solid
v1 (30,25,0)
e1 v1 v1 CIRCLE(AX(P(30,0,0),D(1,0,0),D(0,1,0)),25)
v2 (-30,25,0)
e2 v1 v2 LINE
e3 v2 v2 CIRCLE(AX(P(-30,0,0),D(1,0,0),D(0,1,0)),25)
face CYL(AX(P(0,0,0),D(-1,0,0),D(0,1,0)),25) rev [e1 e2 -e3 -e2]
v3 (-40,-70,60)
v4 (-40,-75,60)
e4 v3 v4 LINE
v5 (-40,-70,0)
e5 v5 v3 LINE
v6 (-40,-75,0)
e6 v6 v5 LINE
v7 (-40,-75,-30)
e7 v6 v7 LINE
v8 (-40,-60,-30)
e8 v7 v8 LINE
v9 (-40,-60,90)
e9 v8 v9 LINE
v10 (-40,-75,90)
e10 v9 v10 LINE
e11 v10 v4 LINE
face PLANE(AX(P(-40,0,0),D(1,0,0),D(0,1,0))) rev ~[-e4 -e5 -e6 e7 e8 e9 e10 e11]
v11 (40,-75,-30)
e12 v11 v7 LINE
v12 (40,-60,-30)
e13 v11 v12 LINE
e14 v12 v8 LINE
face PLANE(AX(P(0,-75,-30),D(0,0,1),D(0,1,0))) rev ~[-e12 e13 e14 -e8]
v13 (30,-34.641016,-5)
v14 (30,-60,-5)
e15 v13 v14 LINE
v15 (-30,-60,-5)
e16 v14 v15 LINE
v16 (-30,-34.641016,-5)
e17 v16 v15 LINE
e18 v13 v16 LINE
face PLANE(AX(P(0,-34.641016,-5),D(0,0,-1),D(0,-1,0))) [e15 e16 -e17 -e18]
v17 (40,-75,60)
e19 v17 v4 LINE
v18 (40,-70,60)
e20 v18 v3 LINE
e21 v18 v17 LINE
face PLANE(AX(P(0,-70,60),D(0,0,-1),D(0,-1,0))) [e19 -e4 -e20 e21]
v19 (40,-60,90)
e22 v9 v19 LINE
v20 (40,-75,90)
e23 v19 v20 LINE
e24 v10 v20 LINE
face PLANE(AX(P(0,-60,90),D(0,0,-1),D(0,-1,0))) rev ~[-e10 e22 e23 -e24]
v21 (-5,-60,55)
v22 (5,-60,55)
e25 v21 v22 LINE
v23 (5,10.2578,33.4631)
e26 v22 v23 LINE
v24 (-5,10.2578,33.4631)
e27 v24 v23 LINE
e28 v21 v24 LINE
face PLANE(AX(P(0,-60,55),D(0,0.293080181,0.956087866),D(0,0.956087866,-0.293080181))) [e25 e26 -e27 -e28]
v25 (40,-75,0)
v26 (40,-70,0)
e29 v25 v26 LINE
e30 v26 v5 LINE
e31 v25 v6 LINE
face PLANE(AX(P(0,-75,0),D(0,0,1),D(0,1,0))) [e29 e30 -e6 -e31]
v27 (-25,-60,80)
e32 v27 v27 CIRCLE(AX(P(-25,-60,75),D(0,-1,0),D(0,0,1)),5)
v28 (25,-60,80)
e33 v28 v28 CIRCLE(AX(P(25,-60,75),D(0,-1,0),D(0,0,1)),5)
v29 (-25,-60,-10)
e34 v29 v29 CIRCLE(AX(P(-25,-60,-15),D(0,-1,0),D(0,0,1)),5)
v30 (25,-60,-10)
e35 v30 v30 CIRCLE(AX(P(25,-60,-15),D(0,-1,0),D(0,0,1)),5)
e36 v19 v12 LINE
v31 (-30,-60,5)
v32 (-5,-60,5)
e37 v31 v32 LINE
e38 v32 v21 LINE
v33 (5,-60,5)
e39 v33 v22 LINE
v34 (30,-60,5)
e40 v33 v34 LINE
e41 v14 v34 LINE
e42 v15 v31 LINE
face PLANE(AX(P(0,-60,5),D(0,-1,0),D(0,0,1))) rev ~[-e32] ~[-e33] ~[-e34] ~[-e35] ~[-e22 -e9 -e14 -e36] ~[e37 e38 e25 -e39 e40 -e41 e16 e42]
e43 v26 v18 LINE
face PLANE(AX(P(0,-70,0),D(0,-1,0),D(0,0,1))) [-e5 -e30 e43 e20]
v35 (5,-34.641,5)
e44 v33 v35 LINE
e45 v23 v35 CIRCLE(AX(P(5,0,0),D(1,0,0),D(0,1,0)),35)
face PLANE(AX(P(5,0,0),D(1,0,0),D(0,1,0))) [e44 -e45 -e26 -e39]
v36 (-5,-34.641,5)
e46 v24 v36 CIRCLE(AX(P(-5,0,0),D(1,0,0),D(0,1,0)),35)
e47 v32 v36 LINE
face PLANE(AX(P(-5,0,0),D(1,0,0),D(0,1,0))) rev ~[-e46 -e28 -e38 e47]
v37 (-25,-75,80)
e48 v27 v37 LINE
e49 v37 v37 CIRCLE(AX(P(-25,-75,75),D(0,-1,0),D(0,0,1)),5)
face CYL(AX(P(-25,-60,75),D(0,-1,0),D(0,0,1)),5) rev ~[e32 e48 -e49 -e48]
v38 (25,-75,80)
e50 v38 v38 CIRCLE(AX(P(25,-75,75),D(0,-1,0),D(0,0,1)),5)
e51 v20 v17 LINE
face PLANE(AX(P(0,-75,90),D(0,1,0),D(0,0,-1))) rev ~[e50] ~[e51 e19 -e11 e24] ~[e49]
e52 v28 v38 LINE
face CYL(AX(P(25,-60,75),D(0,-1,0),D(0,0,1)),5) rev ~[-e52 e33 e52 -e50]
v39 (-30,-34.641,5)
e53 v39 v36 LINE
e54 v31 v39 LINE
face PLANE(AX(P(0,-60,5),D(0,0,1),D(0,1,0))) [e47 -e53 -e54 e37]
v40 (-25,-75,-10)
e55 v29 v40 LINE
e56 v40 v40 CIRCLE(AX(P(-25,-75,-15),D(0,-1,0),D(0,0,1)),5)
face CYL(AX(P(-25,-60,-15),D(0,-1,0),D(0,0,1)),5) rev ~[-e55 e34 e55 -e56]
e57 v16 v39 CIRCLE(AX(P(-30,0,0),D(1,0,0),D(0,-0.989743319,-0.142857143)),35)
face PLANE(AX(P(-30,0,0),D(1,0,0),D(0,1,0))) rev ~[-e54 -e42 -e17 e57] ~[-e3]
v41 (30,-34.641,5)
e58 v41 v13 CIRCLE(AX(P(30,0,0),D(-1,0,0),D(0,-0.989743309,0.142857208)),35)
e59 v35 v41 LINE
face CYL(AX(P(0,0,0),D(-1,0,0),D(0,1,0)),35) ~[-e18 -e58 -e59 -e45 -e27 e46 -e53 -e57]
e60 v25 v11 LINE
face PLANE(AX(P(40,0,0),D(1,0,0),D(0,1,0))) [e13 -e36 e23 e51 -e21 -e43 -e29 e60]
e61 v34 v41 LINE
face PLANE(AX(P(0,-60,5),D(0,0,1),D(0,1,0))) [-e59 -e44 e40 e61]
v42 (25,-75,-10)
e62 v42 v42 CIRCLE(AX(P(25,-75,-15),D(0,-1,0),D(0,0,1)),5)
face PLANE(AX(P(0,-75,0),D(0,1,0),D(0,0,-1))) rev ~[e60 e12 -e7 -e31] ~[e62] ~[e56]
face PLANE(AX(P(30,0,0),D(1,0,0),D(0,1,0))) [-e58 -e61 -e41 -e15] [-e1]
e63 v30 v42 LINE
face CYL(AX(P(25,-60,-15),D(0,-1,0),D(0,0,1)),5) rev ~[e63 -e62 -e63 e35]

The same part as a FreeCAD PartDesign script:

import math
import FreeCAD as App
import Part
import Sketcher
from FreeCAD import Vector


def add_polygon(sketch, points):
    """Adds a closed chain of lines whose ends are joined by coincident constraints."""
    first, n = sketch.GeometryCount, len(points)
    for a, b in zip(points, points[1:] + points[:1]):
        sketch.addGeometry(Part.LineSegment(App.Vector(*a, 0), App.Vector(*b, 0)), False)
    for i in range(n):
        sketch.addConstraint(Sketcher.Constraint("Coincident", first + i, 2, first + (i + 1) % n, 1))

doc = App.newDocument("Part")
body = doc.addObject("PartDesign::Body", "Body")

# Sketch on YZ plane
sketch1 = body.newObject("Sketcher::SketchObject", "Sketch")
sketch1.AttachmentSupport = (doc.getObject("YZ_Plane"), [""])
sketch1.MapMode = "FlatFace"
sketch1.addGeometry([
    Part.ArcOfCircle(Part.Circle(Vector(0, 0, 0), Vector(0, 0, 1), 35), math.radians(-172), math.radians(172)),  # 0
    Part.LineSegment(Vector(-35, 5, 0), Vector(-60, 5, 0)),  # 1
    Part.LineSegment(Vector(-60, 5, 0), Vector(-60, -5, 0)),  # 2
    Part.LineSegment(Vector(-60, -5, 0), Vector(-35, -5, 0)),  # 3
    Part.Circle(Vector(0, 0, 0), Vector(0, 0, 1), 25),  # 4
], False)
sketch1.addConstraint([
    Sketcher.Constraint("Coincident", 0, 2, 1, 1),
    Sketcher.Constraint("Coincident", 1, 2, 2, 1),
    Sketcher.Constraint("Coincident", 2, 2, 3, 1),
    Sketcher.Constraint("Coincident", 3, 2, 0, 1),
    Sketcher.Constraint("Horizontal", 1),
    Sketcher.Constraint("Vertical", 2),
    Sketcher.Constraint("Horizontal", 3),
    Sketcher.Constraint("Coincident", 0, 3, -1, 1),
    Sketcher.Constraint("Coincident", 4, 3, -1, 1),
    Sketcher.Constraint("Vertical", 0, 2, 3, 2),
    Sketcher.Constraint("Diameter", 4, 50.0),
    Sketcher.Constraint("Radius", 0, 35.0),
    Sketcher.Constraint("DistanceY", 2, 2, 2, 1, 10.0),
    Sketcher.Constraint("DistanceX", 1, 2, -1, 1, 60.0),
])
pad1 = body.newObject("PartDesign::Pad", "Pad")
pad1.Profile = sketch1
pad1.Length = 60
pad1.Midplane = True

# Sketch on YZ plane
sketch2 = body.newObject("Sketcher::SketchObject", "Sketch001")
sketch2.AttachmentSupport = (doc.getObject("YZ_Plane"), [""])
sketch2.MapMode = "FlatFace"
sketch2.addGeometry([
    Part.ArcOfCircle(Part.Circle(Vector(0, 0, 0), Vector(0, 0, 1), 35), math.radians(73), math.radians(172)),
    Part.LineSegment(Vector(10, 33, 0), Vector(-60, 55, 0)),
    Part.LineSegment(Vector(-60, 55, 0), Vector(-60, 5, 0)),
    Part.LineSegment(Vector(-60, 5, 0), Vector(-35, 5, 0)),
], False)
sketch2.addConstraint([
    Sketcher.Constraint("Tangent", 0, 1, 1, 1),
    Sketcher.Constraint("Coincident", 1, 2, 2, 1),
    Sketcher.Constraint("Coincident", 2, 2, 3, 1),
    Sketcher.Constraint("Coincident", 3, 2, 0, 2),
    Sketcher.Constraint("Vertical", 2),
    Sketcher.Constraint("Horizontal", 3),
    Sketcher.Constraint("Coincident", 0, 3, -1, 1),
    Sketcher.Constraint("Radius", 0, 35.0),
    Sketcher.Constraint("DistanceY", 2, 2, 2, 1, 50.0),
    Sketcher.Constraint("DistanceX", 1, 2, -1, 1, 60.0),
    Sketcher.Constraint("DistanceY", -1, 1, 2, 2, 5.0),
])
pad2 = body.newObject("PartDesign::Pad", "Pad001")
pad2.Profile = sketch2
pad2.Length = 10
pad2.Midplane = True

# Sketch on YZ plane
sketch3 = body.newObject("Sketcher::SketchObject", "Sketch002")
sketch3.AttachmentSupport = (doc.getObject("YZ_Plane"), [""])
sketch3.MapMode = "FlatFace"
add_polygon(sketch3, [(-60, -30), (-60, 90), (-75, 90), (-75, 60), (-70, 60), (-70, 0), (-75, 0), (-75, -30)])  # lines 0-7
sketch3.addConstraint([
    Sketcher.Constraint("Vertical", 0),
    Sketcher.Constraint("Horizontal", 1),
    Sketcher.Constraint("Vertical", 2),
    Sketcher.Constraint("Horizontal", 3),
    Sketcher.Constraint("Vertical", 4),
    Sketcher.Constraint("Horizontal", 5),
    Sketcher.Constraint("Vertical", 6),
    Sketcher.Constraint("Horizontal", 7),
    Sketcher.Constraint("PointOnObject", 4, 2, -1),
    Sketcher.Constraint("Vertical", 2, 2, 5, 2),
    Sketcher.Constraint("Equal", 2, 6),
    Sketcher.Constraint("DistanceX", 1, 2, 1, 1, 15.0),
    Sketcher.Constraint("DistanceX", 3, 1, 3, 2, 5.0),
    Sketcher.Constraint("DistanceY", 0, 1, 0, 2, 120.0),
    Sketcher.Constraint("DistanceY", 2, 2, 2, 1, 30.0),
    Sketcher.Constraint("DistanceX", 0, 2, -1, 1, 60.0),
])
pad3 = body.newObject("PartDesign::Pad", "Pad002")
pad3.Profile = sketch3
pad3.Length = 80
pad3.Midplane = True

# Sketch on XZ plane
sketch4 = body.newObject("Sketcher::SketchObject", "Sketch003")
sketch4.AttachmentSupport = (doc.getObject("XZ_Plane"), [""])
sketch4.MapMode = "FlatFace"
sketch4.AttachmentOffset = App.Placement(Vector(0, 0, 60), App.Rotation())
sketch4.addGeometry([
    Part.Circle(Vector(-25, 75, 0), Vector(0, 0, 1), 5),
    Part.Circle(Vector(-25, -15, 0), Vector(0, 0, 1), 5),
    Part.Circle(Vector(25, 75, 0), Vector(0, 0, 1), 5),
    Part.Circle(Vector(25, -15, 0), Vector(0, 0, 1), 5),
], False)
sketch4.addConstraint([
    Sketcher.Constraint("Equal", 0, 1),
    Sketcher.Constraint("Equal", 1, 2),
    Sketcher.Constraint("Equal", 2, 3),
    Sketcher.Constraint("Symmetric", 0, 3, 2, 3, -2),
    Sketcher.Constraint("Symmetric", 1, 3, 3, 3, -2),
    Sketcher.Constraint("Vertical", 0, 3, 1, 3),
    Sketcher.Constraint("Diameter", 0, 10.0),
    Sketcher.Constraint("DistanceX", 0, 3, -1, 1, 25.0),
    Sketcher.Constraint("DistanceY", -1, 1, 0, 3, 75.0),
    Sketcher.Constraint("DistanceY", 1, 3, -1, 1, 15.0),
])
doc.recompute()
hole = body.newObject("PartDesign::Hole", "Hole")
hole.Profile = sketch4
hole.ThreadType = "None"
hole.Diameter = 10
hole.DepthType = "ThroughAll"
hole.Reversed = True

doc.recompute()
